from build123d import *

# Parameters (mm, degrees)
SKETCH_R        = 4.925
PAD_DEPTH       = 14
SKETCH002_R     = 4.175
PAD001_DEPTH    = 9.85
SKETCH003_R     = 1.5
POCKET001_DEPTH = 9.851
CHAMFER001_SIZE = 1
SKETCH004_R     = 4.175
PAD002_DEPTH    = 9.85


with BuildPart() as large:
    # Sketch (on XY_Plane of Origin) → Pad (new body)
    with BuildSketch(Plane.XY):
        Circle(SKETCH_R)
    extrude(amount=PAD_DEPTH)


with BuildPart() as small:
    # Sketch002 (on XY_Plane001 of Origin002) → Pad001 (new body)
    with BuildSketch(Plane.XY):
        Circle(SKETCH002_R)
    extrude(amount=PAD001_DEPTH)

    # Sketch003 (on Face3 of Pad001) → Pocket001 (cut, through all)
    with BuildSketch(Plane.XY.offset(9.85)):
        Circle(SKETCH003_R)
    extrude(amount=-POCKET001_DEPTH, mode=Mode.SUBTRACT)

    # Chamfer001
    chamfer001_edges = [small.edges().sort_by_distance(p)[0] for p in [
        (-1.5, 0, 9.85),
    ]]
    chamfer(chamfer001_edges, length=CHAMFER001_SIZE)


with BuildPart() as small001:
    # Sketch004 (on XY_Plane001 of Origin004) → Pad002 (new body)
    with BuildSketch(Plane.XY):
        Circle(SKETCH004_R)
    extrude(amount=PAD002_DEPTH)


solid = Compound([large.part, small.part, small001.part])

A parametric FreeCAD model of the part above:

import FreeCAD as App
import Part
import Sketcher
from FreeCAD import Vector


def edges_at(feature, points):
    """Names of the edges that pass closest to the given points."""
    edges = feature.Shape.Edges
    near = lambda p: min(range(len(edges)), key=lambda i: edges[i].distToShape(Part.Vertex(*p))[0])
    return sorted({f"Edge{near(p) + 1}" for p in points})

doc = App.newDocument("Part")
params = doc.addObject("Spreadsheet::Sheet", "Params")
for row, (alias, value) in enumerate([
    ("sketch1_diameter", "9.85 mm"),
    ("pad1_length", "14 mm"),
    ("sketch2_diameter", "8.35 mm"),
    ("pad2_length", "9.85 mm"),
    ("sketch3_diameter", "3 mm"),
    ("chamfer_size", "1 mm"),
    ("sketch4_diameter", "8.35 mm"),
    ("pad3_length", "9.85 mm"),
], start=1):
    params.set(f"A{row}", alias)
    params.set(f"B{row}", "=" + value)
    params.setAlias(f"B{row}", alias)

body = doc.addObject("PartDesign::Body", "Body")

sketch1 = body.newObject("Sketcher::SketchObject", "Sketch")
sketch1.AttachmentSupport = (doc.getObject("XY_Plane"), [""])
sketch1.MapMode = "FlatFace"
sketch1.addGeometry(Part.Circle(Vector(0, 0, 0), Vector(0, 0, 1), 4.9), False)
sketch1.addConstraint(Sketcher.Constraint("Coincident", 0, 3, -1, 1))
sketch1.addConstraint(Sketcher.Constraint("Diameter", 0, 9.85))
sketch1.setExpression("Constraints[1]", "Params.sketch1_diameter")
pad1 = body.newObject("PartDesign::Pad", "Pad")
pad1.Profile = sketch1
pad1.setExpression("Length", "Params.pad1_length")
body2 = doc.addObject("PartDesign::Body", "Body001")

sketch2 = body2.newObject("Sketcher::SketchObject", "Sketch001")
sketch2.AttachmentSupport = (doc.getObject("XY_Plane001"), [""])
sketch2.MapMode = "FlatFace"
sketch2.addGeometry(Part.Circle(Vector(0, 0, 0), Vector(0, 0, 1), 4.2), False)
sketch2.addConstraint(Sketcher.Constraint("Coincident", 0, 3, -1, 1))
sketch2.addConstraint(Sketcher.Constraint("Diameter", 0, 8.35))
sketch2.setExpression("Constraints[1]", "Params.sketch2_diameter")
pad2 = body2.newObject("PartDesign::Pad", "Pad001")
pad2.Profile = sketch2
pad2.setExpression("Length", "Params.pad2_length")

sketch3 = body2.newObject("Sketcher::SketchObject", "Sketch002")
sketch3.AttachmentSupport = (doc.getObject("XY_Plane001"), [""])
sketch3.MapMode = "FlatFace"
sketch3.AttachmentOffset = App.Placement(Vector(0, 0, 9.85), App.Rotation())
sketch3.addGeometry(Part.Circle(Vector(0, 0, 0), Vector(0, 0, 1), 1.5), False)
sketch3.addConstraint(Sketcher.Constraint("Coincident", 0, 3, -1, 1))
sketch3.addConstraint(Sketcher.Constraint("Diameter", 0, 3.0))
sketch3.setExpression("Constraints[1]", "Params.sketch3_diameter")
pocket1 = body2.newObject("PartDesign::Pocket", "Pocket")
pocket1.Profile = sketch3
pocket1.Type = "ThroughAll"
doc.recompute()

chamfer = body2.newObject("PartDesign::Chamfer", "Chamfer")
chamfer.Base = (pocket1, edges_at(pocket1, [(-1.5, 0, 9.85)]))
chamfer.setExpression("Size", "Params.chamfer_size")
body3 = doc.addObject("PartDesign::Body", "Body002")

sketch4 = body3.newObject("Sketcher::SketchObject", "Sketch003")
sketch4.AttachmentSupport = (doc.getObject("XY_Plane002"), [""])
sketch4.MapMode = "FlatFace"
sketch4.addGeometry(Part.Circle(Vector(0, 0, 0), Vector(0, 0, 1), 4.2), False)
sketch4.addConstraint(Sketcher.Constraint("Coincident", 0, 3, -1, 1))
sketch4.addConstraint(Sketcher.Constraint("Diameter", 0, 8.35))
sketch4.setExpression("Constraints[1]", "Params.sketch4_diameter")
pad3 = body3.newObject("PartDesign::Pad", "Pad002")
pad3.Profile = sketch4
pad3.setExpression("Length", "Params.pad3_length")

doc.recompute()
